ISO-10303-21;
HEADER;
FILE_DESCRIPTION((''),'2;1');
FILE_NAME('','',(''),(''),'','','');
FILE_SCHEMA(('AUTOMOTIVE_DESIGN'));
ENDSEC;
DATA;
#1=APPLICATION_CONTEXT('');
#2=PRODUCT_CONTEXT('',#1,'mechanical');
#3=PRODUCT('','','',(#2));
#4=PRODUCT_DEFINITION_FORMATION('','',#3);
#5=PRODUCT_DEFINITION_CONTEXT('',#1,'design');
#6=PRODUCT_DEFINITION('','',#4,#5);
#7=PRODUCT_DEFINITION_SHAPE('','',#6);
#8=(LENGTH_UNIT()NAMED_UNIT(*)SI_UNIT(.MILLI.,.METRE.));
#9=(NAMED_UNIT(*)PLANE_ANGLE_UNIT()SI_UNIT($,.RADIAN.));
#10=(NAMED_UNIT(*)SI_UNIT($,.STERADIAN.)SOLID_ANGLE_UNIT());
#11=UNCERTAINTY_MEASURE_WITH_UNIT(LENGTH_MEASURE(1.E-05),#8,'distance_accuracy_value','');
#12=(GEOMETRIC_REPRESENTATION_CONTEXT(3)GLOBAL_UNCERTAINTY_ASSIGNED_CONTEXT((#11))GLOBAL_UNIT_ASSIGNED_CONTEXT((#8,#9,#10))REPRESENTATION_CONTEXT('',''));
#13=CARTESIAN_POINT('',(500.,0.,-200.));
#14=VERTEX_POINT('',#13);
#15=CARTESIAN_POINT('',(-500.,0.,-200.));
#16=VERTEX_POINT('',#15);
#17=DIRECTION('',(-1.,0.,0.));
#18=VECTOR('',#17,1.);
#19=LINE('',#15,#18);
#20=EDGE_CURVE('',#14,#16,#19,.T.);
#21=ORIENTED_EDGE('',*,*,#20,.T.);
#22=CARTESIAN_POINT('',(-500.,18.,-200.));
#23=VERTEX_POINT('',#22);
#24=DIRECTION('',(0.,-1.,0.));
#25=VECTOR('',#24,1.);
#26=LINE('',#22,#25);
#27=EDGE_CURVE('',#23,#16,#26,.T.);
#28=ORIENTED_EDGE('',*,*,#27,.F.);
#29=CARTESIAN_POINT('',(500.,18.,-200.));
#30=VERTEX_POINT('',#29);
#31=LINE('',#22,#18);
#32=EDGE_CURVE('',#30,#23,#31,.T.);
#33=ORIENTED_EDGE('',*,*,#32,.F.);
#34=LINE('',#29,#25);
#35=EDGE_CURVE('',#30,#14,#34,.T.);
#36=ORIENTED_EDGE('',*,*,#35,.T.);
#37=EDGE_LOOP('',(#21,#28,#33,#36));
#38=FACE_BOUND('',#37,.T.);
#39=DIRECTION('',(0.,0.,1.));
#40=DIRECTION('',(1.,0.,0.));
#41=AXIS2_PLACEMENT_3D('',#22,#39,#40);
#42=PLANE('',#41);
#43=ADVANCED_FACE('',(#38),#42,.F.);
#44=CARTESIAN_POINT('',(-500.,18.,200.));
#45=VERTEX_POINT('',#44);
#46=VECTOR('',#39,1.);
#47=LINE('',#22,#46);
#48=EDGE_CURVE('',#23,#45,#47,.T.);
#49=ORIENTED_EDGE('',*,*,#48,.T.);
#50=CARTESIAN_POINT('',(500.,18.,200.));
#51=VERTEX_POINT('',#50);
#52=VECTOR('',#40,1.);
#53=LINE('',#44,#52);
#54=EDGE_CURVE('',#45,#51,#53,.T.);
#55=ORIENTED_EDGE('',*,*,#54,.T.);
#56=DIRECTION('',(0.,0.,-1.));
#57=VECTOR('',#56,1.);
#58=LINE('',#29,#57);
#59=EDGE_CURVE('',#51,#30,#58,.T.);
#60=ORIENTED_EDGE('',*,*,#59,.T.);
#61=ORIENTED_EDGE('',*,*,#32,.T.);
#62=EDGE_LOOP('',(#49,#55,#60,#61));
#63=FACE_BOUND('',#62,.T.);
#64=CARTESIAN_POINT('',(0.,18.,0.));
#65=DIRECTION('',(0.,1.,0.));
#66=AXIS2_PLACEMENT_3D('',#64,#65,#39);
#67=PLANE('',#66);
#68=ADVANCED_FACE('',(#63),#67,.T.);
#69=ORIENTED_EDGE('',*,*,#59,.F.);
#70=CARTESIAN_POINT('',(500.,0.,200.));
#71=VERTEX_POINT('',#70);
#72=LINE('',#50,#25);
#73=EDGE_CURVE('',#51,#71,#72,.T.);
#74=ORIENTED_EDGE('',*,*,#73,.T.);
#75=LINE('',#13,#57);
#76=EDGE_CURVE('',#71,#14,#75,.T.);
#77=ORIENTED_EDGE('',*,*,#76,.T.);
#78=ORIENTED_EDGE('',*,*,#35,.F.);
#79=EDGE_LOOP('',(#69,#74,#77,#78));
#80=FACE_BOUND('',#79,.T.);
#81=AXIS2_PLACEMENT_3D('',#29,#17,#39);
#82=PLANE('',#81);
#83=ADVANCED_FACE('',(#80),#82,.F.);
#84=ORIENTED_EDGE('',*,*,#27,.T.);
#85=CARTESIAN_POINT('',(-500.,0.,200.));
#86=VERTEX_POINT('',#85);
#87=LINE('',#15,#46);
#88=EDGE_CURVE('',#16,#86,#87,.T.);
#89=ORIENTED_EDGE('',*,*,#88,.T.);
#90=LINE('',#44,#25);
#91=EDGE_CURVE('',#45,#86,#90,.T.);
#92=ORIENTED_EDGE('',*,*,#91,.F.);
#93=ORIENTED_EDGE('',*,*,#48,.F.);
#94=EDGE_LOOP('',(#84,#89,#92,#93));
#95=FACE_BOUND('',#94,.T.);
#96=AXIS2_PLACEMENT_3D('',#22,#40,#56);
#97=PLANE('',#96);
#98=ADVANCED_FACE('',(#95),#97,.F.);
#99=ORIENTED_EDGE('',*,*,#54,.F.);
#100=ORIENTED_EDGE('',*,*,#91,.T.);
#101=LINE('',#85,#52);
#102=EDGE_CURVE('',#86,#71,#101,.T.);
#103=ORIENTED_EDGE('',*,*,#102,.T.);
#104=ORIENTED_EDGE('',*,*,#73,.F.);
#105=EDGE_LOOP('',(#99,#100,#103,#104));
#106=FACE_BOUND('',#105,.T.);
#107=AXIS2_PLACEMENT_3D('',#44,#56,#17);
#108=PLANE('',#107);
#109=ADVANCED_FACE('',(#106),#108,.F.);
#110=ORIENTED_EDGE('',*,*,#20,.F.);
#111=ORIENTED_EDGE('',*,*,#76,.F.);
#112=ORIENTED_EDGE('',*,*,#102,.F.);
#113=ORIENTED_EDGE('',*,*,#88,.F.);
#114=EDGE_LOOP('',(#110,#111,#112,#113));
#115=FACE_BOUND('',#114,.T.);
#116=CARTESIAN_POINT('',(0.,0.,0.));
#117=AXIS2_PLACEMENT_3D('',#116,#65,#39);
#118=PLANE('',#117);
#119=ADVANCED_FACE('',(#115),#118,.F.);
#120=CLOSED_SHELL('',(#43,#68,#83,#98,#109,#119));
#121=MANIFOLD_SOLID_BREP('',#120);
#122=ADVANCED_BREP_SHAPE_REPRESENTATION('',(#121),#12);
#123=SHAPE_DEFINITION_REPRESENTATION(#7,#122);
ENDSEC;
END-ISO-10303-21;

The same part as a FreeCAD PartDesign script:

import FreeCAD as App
import Part
import Sketcher

doc = App.newDocument("Part")
body = doc.addObject("PartDesign::Body", "Body")

sketch1 = doc.addObject("Sketcher::SketchObject", "Sketch")
body.addObject(sketch1)
sketch1.AttachmentSupport = (doc.XZ_Plane, [""])
sketch1.MapMode = "FlatFace"
sketch1.addGeometry([
    Part.LineSegment(App.Vector(-500, -200, 0), App.Vector(-500, 200, 0)),
    Part.LineSegment(App.Vector(-500, 200, 0), App.Vector(500, 200, 0)),
    Part.LineSegment(App.Vector(500, 200, 0), App.Vector(500, -200, 0)),
    Part.LineSegment(App.Vector(500, -200, 0), App.Vector(-500, -200, 0)),
], False)
sketch1.addConstraint([
    Sketcher.Constraint("Coincident", 0, 2, 1, 1),
    Sketcher.Constraint("Coincident", 1, 2, 2, 1),
    Sketcher.Constraint("Coincident", 2, 2, 3, 1),
    Sketcher.Constraint("Coincident", 3, 2, 0, 1),
    Sketcher.Constraint("Vertical", 0),
    Sketcher.Constraint("Horizontal", 1),
    Sketcher.Constraint("Vertical", 2),
    Sketcher.Constraint("Horizontal", 3),
    Sketcher.Constraint("Symmetric", 0, 2, 2, 2, -1, 1),
    Sketcher.Constraint("DistanceX", 1, 1, 1, 2, 1000.0),
    Sketcher.Constraint("DistanceY", 0, 1, 0, 2, 400.0),
])
pad1 = doc.addObject("PartDesign::Pad", "Pad")
body.addObject(pad1)
pad1.Profile = sketch1
pad1.Length = 18
pad1.Reversed = True

doc.recompute()
